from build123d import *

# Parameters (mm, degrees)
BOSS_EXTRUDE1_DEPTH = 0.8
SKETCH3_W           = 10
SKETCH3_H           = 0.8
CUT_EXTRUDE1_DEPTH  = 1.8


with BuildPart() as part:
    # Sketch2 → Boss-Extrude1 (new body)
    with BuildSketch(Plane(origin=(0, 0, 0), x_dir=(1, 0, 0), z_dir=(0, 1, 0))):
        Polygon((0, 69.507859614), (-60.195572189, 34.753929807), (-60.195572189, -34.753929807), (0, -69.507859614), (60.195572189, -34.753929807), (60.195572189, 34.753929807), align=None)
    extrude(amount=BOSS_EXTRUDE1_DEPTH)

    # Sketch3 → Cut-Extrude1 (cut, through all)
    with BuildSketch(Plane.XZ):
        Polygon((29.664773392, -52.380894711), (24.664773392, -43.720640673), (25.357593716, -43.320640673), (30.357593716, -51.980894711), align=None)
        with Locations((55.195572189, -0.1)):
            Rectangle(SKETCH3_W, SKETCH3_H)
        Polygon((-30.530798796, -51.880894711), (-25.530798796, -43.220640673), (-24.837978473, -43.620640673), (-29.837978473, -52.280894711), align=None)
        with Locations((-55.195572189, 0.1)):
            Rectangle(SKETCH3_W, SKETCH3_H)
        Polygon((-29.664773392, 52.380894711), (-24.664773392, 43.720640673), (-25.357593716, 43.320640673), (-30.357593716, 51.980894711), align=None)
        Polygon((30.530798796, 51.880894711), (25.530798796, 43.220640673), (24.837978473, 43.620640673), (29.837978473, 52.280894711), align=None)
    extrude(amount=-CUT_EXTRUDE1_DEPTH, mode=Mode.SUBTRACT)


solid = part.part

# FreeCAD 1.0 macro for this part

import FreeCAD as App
import Part
import Sketcher

V = App.Vector
Q = App.Units.Quantity


def add_polygon(sketch, points):
    """Adds a closed chain of lines whose ends are joined by coincident constraints."""
    first, n = sketch.GeometryCount, len(points)
    for a, b in zip(points, points[1:] + points[:1]):
        sketch.addGeometry(Part.LineSegment(App.Vector(*a, 0), App.Vector(*b, 0)), False)
    for i in range(n):
        sketch.addConstraint(Sketcher.Constraint("Coincident", first + i, 2, first + (i + 1) % n, 1))

doc = App.newDocument("Part")
body = doc.addObject("PartDesign::Body", "Body")

# Sketch on XZ plane
sketch1 = body.newObject("Sketcher::SketchObject", "Sketch")
sketch1.AttachmentSupport = (doc.getObject("XZ_Plane"), [""])
sketch1.MapMode = "FlatFace"
add_polygon(sketch1, [(0, -70), (-60, -35), (-60, 35), (0, 70), (60, 35), (60, -35)])  # lines 0-5
sketch1.addConstraint(Sketcher.Constraint("Vertical", 1))
sketch1.addConstraint(Sketcher.Constraint("Vertical", 4))
sketch1.addConstraint(Sketcher.Constraint("Symmetric", 0, 2, 3, 2, -1, 1))
sketch1.addConstraint(Sketcher.Constraint("Symmetric", 2, 2, 5, 2, -1, 1))
sketch1.addConstraint(Sketcher.Constraint("PointOnObject", 2, 2, -2))
sketch1.addConstraint(Sketcher.Constraint("Parallel", 2, 5))
sketch1.addConstraint(Sketcher.Constraint("Horizontal", 1, 2, 3, 2))
sketch1.addConstraint(Sketcher.Constraint("Angle", 0, Q("150 deg")))
sketch1.addConstraint(Sketcher.Constraint("DistanceY", 1, 1, 1, 2, Q("69.50786 mm")))
sketch1.addConstraint(Sketcher.Constraint("Distance", 0, Q("69.50786 mm")))
pad1 = body.newObject("PartDesign::Pad", "Pad")
pad1.Profile = sketch1
pad1.Length = 0.8
pad1.Reversed = True

# Sketch on XZ plane
sketch2 = body.newObject("Sketcher::SketchObject", "Sketch001")
sketch2.AttachmentSupport = (doc.getObject("XZ_Plane"), [""])
sketch2.MapMode = "FlatFace"
add_polygon(sketch2, [(24.7, -43.7), (29.7, -52.4), (30.4, -52), (25.4, -43.3)])  # lines 0-3
add_polygon(sketch2, [(50.2, 0.3), (50.2, -0.5), (60.2, -0.5), (60.2, 0.3)])  # lines 4-7
add_polygon(sketch2, [(-25.5, -43.2), (-30.5, -51.9), (-29.8, -52.3), (-24.8, -43.6)])  # lines 8-11
add_polygon(sketch2, [(-60.2, 0.5), (-60.2, -0.3), (-50.2, -0.3), (-50.2, 0.5)])  # lines 12-15
add_polygon(sketch2, [(-24.7, 43.7), (-29.7, 52.4), (-30.4, 52), (-25.4, 43.3)])  # lines 16-19
add_polygon(sketch2, [(25.5, 43.2), (30.5, 51.9), (29.8, 52.3), (24.8, 43.6)])  # lines 20-23
sketch2.addConstraint(Sketcher.Constraint("Vertical", 4))
sketch2.addConstraint(Sketcher.Constraint("Horizontal", 5))
sketch2.addConstraint(Sketcher.Constraint("Vertical", 6))
sketch2.addConstraint(Sketcher.Constraint("Horizontal", 7))
sketch2.addConstraint(Sketcher.Constraint("Vertical", 12))
sketch2.addConstraint(Sketcher.Constraint("Horizontal", 13))
sketch2.addConstraint(Sketcher.Constraint("Vertical", 14))
sketch2.addConstraint(Sketcher.Constraint("Horizontal", 15))
sketch2.addConstraint(Sketcher.Constraint("Symmetric", 6, 2, 12, 2, -1, 1))
sketch2.addConstraint(Sketcher.Constraint("Symmetric", 4, 2, 14, 2, -1, 1))
sketch2.addConstraint(Sketcher.Constraint("Symmetric", 0, 2, 16, 2, -1, 1))
sketch2.addConstraint(Sketcher.Constraint("Symmetric", 1, 2, 17, 2, -1, 1))
sketch2.addConstraint(Sketcher.Constraint("Symmetric", 2, 2, 18, 2, -1, 1))
sketch2.addConstraint(Sketcher.Constraint("Symmetric", 3, 2, 19, 2, -1, 1))
sketch2.addConstraint(Sketcher.Constraint("Symmetric", 8, 2, 20, 2, -1, 1))
sketch2.addConstraint(Sketcher.Constraint("Symmetric", 9, 2, 21, 2, -1, 1))
sketch2.addConstraint(Sketcher.Constraint("Symmetric", 10, 2, 22, 2, -1, 1))
sketch2.addConstraint(Sketcher.Constraint("Symmetric", 11, 2, 23, 2, -1, 1))
sketch2.addConstraint(Sketcher.Constraint("Perpendicular", 0, 1))
sketch2.addConstraint(Sketcher.Constraint("Perpendicular", 1, 2))
sketch2.addConstraint(Sketcher.Constraint("Perpendicular", 2, 3))
sketch2.addConstraint(Sketcher.Constraint("Perpendicular", 8, 9))
sketch2.addConstraint(Sketcher.Constraint("Perpendicular", 9, 10))
sketch2.addConstraint(Sketcher.Constraint("Perpendicular", 10, 11))
sketch2.addConstraint(Sketcher.Constraint("Equal", 2, 8))
sketch2.addConstraint(Sketcher.Constraint("Equal", 3, 9))
sketch2.addConstraint(Sketcher.Constraint("DistanceX", 5, 1, 5, 2, Q("10 mm")))
sketch2.addConstraint(Sketcher.Constraint("Angle", 0, Q("-60 deg")))
sketch2.addConstraint(Sketcher.Constraint("Angle", 8, Q("-120 deg")))
sketch2.addConstraint(Sketcher.Constraint("Distance", 0, Q("10 mm")))
sketch2.addConstraint(Sketcher.Constraint("DistanceY", 4, 2, 4, 1, Q("0.8 mm")))
sketch2.addConstraint(Sketcher.Constraint("Distance", 1, Q("0.8 mm")))
sketch2.addConstraint(Sketcher.Constraint("DistanceY", 4, 2, -1, 1, Q("0.5 mm")))
sketch2.addConstraint(Sketcher.Constraint("DistanceY", 0, 2, 8, 2, Q("0.5 mm")))
sketch2.addConstraint(Sketcher.Constraint("DistanceX", 8, 2, -1, 1, Q("30.530799 mm")))
sketch2.addConstraint(Sketcher.Constraint("DistanceX", 3, 2, 4, 2, Q("25.530799 mm")))
sketch2.addConstraint(Sketcher.Constraint("DistanceY", 2, 2, -1, 1, Q("43.320641 mm")))
sketch2.addConstraint(Sketcher.Constraint("DistanceX", 8, 2, 4, 2, Q("80.726371 mm")))
pocket1 = body.newObject("PartDesign::Pocket", "Pocket")
pocket1.Profile = sketch2
pocket1.Type = "ThroughAll"

doc.recompute()
